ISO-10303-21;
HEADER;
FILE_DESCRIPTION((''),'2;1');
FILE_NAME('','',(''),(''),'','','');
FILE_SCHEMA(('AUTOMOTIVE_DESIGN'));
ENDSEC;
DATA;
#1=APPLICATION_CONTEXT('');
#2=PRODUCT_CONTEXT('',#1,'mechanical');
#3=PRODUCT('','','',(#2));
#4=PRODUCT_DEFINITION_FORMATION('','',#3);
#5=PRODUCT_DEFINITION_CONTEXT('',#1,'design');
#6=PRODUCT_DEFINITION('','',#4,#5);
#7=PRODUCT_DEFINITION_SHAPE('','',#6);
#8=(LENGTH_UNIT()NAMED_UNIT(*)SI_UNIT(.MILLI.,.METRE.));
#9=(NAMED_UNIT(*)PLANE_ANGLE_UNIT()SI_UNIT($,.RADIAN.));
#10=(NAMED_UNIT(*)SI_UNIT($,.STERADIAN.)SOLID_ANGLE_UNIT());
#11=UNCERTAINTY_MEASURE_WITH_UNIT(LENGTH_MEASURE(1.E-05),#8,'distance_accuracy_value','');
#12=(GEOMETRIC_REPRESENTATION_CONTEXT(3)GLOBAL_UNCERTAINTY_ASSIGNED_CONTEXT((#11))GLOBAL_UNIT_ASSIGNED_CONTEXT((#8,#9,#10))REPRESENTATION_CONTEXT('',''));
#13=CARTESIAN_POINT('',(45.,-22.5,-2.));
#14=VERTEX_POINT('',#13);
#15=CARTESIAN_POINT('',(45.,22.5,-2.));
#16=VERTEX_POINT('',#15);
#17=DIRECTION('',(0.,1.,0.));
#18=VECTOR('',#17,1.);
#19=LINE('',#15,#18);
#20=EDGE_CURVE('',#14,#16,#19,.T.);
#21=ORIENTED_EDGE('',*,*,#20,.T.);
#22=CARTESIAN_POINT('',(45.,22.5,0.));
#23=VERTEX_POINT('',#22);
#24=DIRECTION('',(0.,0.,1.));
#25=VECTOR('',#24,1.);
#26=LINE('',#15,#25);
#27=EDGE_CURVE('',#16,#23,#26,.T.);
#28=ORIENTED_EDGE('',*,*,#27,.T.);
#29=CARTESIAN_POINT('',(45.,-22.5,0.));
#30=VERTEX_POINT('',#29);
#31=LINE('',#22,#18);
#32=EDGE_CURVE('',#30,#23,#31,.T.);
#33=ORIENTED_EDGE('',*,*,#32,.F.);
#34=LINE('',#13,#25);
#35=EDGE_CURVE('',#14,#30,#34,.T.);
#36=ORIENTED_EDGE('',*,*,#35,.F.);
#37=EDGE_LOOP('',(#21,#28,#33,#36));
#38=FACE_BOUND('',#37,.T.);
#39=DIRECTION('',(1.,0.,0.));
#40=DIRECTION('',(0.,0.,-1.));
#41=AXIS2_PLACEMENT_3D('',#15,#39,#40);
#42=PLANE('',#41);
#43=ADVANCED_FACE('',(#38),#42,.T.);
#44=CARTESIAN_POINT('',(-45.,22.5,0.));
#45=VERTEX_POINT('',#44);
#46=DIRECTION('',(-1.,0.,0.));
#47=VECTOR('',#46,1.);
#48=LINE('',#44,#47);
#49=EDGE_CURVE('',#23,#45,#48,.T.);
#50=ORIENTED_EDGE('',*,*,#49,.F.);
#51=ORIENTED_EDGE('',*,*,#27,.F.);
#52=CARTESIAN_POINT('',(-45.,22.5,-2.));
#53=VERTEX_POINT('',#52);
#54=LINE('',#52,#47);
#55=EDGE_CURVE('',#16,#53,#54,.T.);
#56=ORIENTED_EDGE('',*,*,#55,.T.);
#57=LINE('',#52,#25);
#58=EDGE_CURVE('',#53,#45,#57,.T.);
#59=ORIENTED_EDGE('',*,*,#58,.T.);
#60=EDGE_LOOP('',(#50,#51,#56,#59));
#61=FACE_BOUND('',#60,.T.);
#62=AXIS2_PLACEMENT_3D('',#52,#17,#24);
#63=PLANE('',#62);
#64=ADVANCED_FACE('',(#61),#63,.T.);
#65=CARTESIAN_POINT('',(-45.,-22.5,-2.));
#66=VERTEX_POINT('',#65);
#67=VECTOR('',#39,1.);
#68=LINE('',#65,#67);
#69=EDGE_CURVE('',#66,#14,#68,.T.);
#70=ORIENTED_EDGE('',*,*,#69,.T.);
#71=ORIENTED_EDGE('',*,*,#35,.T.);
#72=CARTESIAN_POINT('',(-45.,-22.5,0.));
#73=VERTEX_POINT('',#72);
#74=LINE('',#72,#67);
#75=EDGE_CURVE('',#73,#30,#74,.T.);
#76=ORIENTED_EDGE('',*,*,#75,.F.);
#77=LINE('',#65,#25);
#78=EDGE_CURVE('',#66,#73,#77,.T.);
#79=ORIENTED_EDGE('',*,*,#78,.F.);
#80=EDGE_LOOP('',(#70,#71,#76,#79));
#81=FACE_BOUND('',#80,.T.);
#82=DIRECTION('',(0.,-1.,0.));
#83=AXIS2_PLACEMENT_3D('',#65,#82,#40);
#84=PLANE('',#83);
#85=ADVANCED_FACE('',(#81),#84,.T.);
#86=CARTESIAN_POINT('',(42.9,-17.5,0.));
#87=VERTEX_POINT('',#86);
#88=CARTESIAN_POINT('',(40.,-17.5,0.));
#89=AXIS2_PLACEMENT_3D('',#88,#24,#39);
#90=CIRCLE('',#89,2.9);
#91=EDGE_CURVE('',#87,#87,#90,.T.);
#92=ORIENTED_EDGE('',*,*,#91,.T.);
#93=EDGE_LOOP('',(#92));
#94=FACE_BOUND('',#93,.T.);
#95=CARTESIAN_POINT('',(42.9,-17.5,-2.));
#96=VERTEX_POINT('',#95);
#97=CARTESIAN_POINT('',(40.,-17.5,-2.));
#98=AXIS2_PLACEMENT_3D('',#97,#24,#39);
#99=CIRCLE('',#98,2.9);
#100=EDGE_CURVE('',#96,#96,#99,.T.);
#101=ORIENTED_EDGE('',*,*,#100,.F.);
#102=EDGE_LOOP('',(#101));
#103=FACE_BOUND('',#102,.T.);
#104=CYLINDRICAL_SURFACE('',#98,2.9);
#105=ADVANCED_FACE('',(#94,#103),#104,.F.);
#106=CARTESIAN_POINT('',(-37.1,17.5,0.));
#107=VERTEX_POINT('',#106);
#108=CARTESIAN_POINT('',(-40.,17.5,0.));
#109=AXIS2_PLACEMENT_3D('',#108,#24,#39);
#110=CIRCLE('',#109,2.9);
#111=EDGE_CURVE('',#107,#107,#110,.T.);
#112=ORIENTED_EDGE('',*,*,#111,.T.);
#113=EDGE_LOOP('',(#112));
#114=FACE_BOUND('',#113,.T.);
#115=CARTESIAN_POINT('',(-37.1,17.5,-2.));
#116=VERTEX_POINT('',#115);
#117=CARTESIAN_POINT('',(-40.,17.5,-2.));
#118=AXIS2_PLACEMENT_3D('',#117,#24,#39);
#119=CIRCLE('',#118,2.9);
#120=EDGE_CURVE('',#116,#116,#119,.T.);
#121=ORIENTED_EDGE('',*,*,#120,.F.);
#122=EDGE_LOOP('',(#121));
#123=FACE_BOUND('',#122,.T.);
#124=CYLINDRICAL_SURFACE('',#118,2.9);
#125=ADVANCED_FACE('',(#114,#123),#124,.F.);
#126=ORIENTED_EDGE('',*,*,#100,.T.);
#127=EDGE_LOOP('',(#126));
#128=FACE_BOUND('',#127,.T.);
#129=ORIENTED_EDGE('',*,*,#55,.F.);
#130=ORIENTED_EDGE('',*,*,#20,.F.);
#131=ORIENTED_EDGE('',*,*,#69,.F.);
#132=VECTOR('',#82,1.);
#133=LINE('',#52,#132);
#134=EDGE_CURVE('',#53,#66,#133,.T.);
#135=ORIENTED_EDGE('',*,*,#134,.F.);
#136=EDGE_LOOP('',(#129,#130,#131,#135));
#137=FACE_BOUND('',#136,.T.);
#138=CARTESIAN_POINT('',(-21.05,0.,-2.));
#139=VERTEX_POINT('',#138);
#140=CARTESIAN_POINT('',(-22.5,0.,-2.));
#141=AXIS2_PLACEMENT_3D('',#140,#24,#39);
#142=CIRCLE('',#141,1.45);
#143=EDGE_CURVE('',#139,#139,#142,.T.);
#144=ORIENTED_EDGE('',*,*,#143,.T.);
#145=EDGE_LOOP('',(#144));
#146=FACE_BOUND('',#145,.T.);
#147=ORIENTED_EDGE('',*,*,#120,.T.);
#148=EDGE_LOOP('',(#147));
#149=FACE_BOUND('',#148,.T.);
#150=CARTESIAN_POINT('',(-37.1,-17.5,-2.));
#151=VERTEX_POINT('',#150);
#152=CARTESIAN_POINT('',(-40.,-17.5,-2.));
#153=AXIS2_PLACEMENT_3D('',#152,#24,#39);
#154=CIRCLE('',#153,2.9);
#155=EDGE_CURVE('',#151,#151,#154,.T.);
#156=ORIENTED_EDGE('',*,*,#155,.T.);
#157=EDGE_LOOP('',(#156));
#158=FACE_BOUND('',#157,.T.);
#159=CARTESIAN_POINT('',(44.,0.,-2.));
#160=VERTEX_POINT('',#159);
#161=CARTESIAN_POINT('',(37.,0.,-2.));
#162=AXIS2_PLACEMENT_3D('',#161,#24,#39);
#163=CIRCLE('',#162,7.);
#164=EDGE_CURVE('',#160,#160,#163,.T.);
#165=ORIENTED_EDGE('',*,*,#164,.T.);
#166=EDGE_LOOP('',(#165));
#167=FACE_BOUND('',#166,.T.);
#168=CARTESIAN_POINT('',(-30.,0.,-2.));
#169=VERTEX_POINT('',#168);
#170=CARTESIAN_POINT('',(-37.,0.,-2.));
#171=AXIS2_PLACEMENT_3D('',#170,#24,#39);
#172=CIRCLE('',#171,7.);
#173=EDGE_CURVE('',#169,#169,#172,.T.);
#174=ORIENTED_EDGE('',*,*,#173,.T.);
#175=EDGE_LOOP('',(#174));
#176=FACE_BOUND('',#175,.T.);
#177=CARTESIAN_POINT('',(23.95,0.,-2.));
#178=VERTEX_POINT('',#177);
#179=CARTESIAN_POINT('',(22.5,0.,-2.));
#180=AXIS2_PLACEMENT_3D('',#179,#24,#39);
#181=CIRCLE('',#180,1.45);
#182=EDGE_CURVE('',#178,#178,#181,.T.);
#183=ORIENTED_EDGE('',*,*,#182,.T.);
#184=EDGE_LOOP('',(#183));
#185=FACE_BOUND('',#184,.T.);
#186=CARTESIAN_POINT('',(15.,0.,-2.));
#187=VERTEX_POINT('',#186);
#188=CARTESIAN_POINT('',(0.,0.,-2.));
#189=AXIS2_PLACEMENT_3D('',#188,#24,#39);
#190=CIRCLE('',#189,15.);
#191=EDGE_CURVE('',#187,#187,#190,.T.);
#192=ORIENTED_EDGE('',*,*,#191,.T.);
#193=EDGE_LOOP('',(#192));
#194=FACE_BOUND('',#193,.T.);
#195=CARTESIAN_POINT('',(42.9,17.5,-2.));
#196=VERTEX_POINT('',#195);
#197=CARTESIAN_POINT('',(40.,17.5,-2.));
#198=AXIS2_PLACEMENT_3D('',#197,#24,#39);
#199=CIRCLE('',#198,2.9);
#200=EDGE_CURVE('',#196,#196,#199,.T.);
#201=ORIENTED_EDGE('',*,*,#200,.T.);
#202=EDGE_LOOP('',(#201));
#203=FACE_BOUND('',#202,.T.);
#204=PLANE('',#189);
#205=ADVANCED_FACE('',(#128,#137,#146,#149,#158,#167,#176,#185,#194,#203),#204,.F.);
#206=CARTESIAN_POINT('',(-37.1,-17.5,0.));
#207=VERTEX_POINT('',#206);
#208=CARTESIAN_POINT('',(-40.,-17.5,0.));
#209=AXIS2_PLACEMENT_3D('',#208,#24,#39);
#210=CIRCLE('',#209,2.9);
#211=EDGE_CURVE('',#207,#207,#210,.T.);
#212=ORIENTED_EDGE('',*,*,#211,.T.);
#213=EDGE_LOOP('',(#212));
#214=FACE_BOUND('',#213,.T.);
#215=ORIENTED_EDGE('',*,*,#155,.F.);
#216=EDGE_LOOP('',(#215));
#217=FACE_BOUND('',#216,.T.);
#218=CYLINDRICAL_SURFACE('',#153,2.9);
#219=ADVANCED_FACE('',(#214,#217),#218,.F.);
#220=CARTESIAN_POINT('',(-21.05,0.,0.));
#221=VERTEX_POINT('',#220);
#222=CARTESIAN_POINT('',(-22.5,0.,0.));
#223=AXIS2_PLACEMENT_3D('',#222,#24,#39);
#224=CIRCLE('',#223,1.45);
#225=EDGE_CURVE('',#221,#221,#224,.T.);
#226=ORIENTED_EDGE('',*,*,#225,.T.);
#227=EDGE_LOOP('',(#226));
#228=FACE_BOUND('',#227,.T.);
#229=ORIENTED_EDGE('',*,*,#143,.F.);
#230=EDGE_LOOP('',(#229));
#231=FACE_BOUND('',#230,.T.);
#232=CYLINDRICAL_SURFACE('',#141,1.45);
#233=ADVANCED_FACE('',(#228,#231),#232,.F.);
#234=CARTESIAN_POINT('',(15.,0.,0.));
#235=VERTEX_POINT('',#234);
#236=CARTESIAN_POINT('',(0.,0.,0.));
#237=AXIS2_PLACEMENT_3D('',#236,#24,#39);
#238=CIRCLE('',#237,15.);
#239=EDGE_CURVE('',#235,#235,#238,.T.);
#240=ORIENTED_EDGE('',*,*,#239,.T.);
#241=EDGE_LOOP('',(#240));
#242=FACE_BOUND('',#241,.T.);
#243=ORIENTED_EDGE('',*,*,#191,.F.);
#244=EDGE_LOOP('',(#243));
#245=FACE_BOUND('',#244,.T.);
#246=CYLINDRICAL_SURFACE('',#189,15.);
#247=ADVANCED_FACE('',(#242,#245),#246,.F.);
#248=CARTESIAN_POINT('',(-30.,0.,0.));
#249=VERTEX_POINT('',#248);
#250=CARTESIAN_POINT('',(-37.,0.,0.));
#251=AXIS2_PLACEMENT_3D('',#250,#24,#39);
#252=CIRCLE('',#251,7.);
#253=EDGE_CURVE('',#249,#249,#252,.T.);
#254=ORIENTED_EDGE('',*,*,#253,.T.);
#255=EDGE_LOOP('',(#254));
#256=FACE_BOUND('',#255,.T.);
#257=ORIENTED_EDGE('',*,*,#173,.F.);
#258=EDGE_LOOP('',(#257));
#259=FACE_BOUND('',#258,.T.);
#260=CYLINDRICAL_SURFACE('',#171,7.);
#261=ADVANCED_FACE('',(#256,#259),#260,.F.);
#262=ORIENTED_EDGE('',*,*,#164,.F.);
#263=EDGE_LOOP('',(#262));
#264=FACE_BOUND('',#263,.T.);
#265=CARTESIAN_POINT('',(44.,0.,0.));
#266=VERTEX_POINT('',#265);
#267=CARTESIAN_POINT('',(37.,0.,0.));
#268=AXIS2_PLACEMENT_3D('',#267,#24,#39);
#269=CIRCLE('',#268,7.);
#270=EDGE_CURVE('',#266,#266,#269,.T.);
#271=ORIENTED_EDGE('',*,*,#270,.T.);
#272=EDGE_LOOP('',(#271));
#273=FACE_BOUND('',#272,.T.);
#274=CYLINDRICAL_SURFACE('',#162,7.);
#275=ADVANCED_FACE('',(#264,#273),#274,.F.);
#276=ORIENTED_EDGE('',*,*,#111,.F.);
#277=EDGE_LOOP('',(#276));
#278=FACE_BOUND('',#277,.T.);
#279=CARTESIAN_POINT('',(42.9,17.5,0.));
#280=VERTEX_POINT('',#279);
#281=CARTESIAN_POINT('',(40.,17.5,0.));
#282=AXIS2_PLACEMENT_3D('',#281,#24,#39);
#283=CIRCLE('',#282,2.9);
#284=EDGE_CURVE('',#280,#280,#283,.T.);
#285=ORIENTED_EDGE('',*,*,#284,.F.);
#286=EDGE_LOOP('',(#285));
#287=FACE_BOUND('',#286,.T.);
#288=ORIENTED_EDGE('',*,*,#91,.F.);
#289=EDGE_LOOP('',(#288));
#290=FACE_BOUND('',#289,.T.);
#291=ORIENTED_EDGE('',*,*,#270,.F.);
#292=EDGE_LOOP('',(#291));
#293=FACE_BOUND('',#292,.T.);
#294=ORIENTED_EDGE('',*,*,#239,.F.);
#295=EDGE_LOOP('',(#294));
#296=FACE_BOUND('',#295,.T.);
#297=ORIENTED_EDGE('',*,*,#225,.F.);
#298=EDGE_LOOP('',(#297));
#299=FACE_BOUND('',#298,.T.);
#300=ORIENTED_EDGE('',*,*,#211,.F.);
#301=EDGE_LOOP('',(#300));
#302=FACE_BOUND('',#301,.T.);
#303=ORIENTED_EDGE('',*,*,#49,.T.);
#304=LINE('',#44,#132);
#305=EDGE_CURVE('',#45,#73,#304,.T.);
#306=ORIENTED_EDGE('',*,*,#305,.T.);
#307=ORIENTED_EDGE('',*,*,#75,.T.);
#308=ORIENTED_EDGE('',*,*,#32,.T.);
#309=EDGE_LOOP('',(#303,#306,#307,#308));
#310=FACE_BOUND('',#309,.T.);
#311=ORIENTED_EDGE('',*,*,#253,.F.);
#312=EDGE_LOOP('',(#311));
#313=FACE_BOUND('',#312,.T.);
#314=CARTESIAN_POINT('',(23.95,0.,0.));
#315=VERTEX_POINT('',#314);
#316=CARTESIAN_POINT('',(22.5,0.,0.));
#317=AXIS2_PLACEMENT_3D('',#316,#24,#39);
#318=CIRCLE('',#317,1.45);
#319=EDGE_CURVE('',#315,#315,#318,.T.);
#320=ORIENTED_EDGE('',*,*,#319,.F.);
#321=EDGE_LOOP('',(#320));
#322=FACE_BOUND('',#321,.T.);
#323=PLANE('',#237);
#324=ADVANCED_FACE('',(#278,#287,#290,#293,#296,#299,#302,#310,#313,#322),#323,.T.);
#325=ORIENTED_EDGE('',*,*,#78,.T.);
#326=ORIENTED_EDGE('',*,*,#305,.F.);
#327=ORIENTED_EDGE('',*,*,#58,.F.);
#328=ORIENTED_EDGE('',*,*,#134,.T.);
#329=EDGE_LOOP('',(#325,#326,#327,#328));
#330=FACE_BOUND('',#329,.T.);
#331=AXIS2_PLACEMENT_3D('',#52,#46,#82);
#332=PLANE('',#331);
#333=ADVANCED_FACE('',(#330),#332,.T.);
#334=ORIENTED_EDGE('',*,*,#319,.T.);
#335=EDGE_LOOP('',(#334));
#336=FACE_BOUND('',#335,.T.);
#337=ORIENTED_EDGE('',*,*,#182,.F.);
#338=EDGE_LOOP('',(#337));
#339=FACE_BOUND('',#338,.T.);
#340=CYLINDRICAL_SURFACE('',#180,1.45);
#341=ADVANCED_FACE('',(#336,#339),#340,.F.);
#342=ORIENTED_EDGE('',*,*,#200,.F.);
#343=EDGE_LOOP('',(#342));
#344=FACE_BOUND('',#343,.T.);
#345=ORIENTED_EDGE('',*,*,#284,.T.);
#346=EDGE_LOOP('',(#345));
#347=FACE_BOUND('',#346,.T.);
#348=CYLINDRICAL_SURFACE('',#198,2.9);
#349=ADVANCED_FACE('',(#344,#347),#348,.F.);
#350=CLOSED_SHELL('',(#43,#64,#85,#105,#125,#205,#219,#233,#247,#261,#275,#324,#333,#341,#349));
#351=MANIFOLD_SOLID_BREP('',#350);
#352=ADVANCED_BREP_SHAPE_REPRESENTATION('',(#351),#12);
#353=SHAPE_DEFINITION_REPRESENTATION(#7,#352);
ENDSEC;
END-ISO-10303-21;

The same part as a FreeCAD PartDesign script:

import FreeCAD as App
import Part
import Sketcher
from FreeCAD import Vector
Q = App.Units.Quantity

doc = App.newDocument("Part")
body = doc.addObject("PartDesign::Body", "Body")

# Sketch on XY plane
sketch1 = doc.addObject("Sketcher::SketchObject", "Sketch")
body.addObject(sketch1)
sketch1.AttachmentSupport = (doc.XY_Plane, [""])
sketch1.MapMode = "FlatFace"
sketch1.addGeometry(Part.LineSegment(Vector(-45, 22.5, 0), Vector(-45, -22.5, 0)), False)
sketch1.addGeometry(Part.LineSegment(Vector(-45, -22.5, 0), Vector(45, -22.5, 0)), False)
sketch1.addGeometry(Part.LineSegment(Vector(45, -22.5, 0), Vector(45, 22.5, 0)), False)
sketch1.addGeometry(Part.LineSegment(Vector(45, 22.5, 0), Vector(-45, 22.5, 0)), False)
sketch1.addGeometry(Part.Circle(Vector(-40, -17.5, 0), Vector(0, 0, 1), 2.9), False)
sketch1.addGeometry(Part.Circle(Vector(40, -17.5, 0), Vector(0, 0, 1), 2.9), False)
sketch1.addGeometry(Part.Circle(Vector(-37, 0, 0), Vector(0, 0, 1), 7), False)
sketch1.addGeometry(Part.Circle(Vector(-22.5, 0, 0), Vector(0, 0, 1), 1.4), False)
sketch1.addGeometry(Part.Circle(Vector(-40, 17.5, 0), Vector(0, 0, 1), 2.9), False)
sketch1.addGeometry(Part.Circle(Vector(0, 0, 0), Vector(0, 0, 1), 15), False)
sketch1.addGeometry(Part.Circle(Vector(22.5, 0, 0), Vector(0, 0, 1), 1.4), False)
sketch1.addGeometry(Part.Circle(Vector(37, 0, 0), Vector(0, 0, 1), 7), False)
sketch1.addGeometry(Part.Circle(Vector(40, 17.5, 0), Vector(0, 0, 1), 2.9), False)
sketch1.addConstraint(Sketcher.Constraint("Coincident", 0, 2, 1, 1))
sketch1.addConstraint(Sketcher.Constraint("Coincident", 1, 2, 2, 1))
sketch1.addConstraint(Sketcher.Constraint("Coincident", 2, 2, 3, 1))
sketch1.addConstraint(Sketcher.Constraint("Coincident", 3, 2, 0, 1))
sketch1.addConstraint(Sketcher.Constraint("Vertical", 0))
sketch1.addConstraint(Sketcher.Constraint("Horizontal", 1))
sketch1.addConstraint(Sketcher.Constraint("Vertical", 2))
sketch1.addConstraint(Sketcher.Constraint("Horizontal", 3))
sketch1.addConstraint(Sketcher.Constraint("Coincident", 9, 3, -1, 1))
sketch1.addConstraint(Sketcher.Constraint("Equal", 4, 5))
sketch1.addConstraint(Sketcher.Constraint("Equal", 5, 8))
sketch1.addConstraint(Sketcher.Constraint("Equal", 7, 10))
sketch1.addConstraint(Sketcher.Constraint("Equal", 6, 11))
sketch1.addConstraint(Sketcher.Constraint("Equal", 8, 12))
sketch1.addConstraint(Sketcher.Constraint("Symmetric", 5, 3, 8, 3, -1, 1))
sketch1.addConstraint(Sketcher.Constraint("Symmetric", 7, 3, 10, 3, -1, 1))
sketch1.addConstraint(Sketcher.Constraint("Symmetric", 6, 3, 11, 3, -1, 1))
sketch1.addConstraint(Sketcher.Constraint("Symmetric", 4, 3, 12, 3, -1, 1))
sketch1.addConstraint(Sketcher.Constraint("Symmetric", 0, 2, 2, 2, -1, 1))
sketch1.addConstraint(Sketcher.Constraint("Symmetric", 4, 3, 5, 3, -2))
sketch1.addConstraint(Sketcher.Constraint("PointOnObject", 6, 3, -1))
sketch1.addConstraint(Sketcher.Constraint("PointOnObject", 7, 3, -1))
sketch1.addConstraint(Sketcher.Constraint("Diameter", 6, Q("14 mm")))
sketch1.addConstraint(Sketcher.Constraint("Diameter", 9, Q("30 mm")))
sketch1.addConstraint(Sketcher.Constraint("Diameter", 4, Q("5.8 mm")))
sketch1.addConstraint(Sketcher.Constraint("Diameter", 7, Q("2.9 mm")))
sketch1.addConstraint(Sketcher.Constraint("DistanceX", 1, 1, 1, 2, Q("90 mm")))
sketch1.addConstraint(Sketcher.Constraint("DistanceY", 0, 2, 0, 1, Q("45 mm")))
sketch1.addConstraint(Sketcher.Constraint("DistanceX", 4, 3, -1, 1, Q("40 mm")))
sketch1.addConstraint(Sketcher.Constraint("DistanceX", 6, 3, -1, 1, Q("37 mm")))
sketch1.addConstraint(Sketcher.Constraint("DistanceY", 4, 3, 8, 3, Q("35 mm")))
sketch1.addConstraint(Sketcher.Constraint("DistanceX", 7, 3, 10, 3, Q("45 mm")))
pad1 = doc.addObject("PartDesign::Pad", "Pad")
body.addObject(pad1)
pad1.Profile = sketch1
pad1.Length = 2
pad1.Reversed = True

doc.recompute()
